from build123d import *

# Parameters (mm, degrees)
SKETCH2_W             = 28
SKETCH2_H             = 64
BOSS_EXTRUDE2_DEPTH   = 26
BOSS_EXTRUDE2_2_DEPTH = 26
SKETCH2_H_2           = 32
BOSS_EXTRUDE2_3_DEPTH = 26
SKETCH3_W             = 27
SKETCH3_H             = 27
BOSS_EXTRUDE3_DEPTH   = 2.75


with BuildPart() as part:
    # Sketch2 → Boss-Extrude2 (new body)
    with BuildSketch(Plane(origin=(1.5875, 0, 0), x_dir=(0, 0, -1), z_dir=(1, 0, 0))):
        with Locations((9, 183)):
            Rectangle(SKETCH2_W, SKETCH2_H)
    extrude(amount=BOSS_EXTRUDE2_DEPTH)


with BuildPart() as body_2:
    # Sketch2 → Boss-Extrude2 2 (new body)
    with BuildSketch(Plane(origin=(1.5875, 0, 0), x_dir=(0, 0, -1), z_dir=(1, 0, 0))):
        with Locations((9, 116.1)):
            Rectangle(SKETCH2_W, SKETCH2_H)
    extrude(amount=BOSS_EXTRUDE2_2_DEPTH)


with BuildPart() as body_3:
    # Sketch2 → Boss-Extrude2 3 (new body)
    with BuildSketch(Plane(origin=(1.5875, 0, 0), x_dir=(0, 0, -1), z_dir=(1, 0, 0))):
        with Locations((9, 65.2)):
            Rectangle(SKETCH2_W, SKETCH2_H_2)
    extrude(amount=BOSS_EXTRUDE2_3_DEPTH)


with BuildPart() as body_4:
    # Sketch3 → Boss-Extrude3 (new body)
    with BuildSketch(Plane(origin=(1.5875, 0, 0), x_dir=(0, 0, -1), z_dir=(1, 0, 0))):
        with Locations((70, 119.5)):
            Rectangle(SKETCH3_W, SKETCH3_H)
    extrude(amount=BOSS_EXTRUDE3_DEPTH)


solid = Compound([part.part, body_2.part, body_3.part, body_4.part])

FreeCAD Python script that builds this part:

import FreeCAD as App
import Part
import Sketcher

doc = App.newDocument("Part")
body = doc.addObject("PartDesign::Body", "Body")

# Sketch on YZ plane
sketch1 = doc.addObject("Sketcher::SketchObject", "Sketch")
body.addObject(sketch1)
sketch1.AttachmentSupport = (doc.YZ_Plane, [""])
sketch1.MapMode = "FlatFace"
sketch1.AttachmentOffset = App.Placement(App.Vector(0, 0, 1.5875), App.Rotation())
sketch1.addGeometry([
    Part.LineSegment(App.Vector(215, 5, 0), App.Vector(151, 5, 0)),
    Part.LineSegment(App.Vector(151, 5, 0), App.Vector(151, -23, 0)),
    Part.LineSegment(App.Vector(151, -23, 0), App.Vector(215, -23, 0)),
    Part.LineSegment(App.Vector(215, -23, 0), App.Vector(215, 5, 0)),
], False)
sketch1.addConstraint([
    Sketcher.Constraint("Coincident", 0, 2, 1, 1),
    Sketcher.Constraint("Coincident", 1, 2, 2, 1),
    Sketcher.Constraint("Coincident", 2, 2, 3, 1),
    Sketcher.Constraint("Coincident", 3, 2, 0, 1),
    Sketcher.Constraint("Horizontal", 0),
    Sketcher.Constraint("Vertical", 1),
    Sketcher.Constraint("Horizontal", 2),
    Sketcher.Constraint("Vertical", 3),
    Sketcher.Constraint("DistanceX", 0, 2, 0, 1, 64.0),
    Sketcher.Constraint("DistanceY", 1, 2, 1, 1, 28.0),
    Sketcher.Constraint("DistanceX", -1, 1, 0, 2, 151.0),
    Sketcher.Constraint("DistanceY", -1, 1, 0, 2, 5.0),
])
pad1 = doc.addObject("PartDesign::Pad", "Pad")
body.addObject(pad1)
pad1.Profile = sketch1
pad1.Length = 26
body2 = doc.addObject("PartDesign::Body", "Body001")

# Sketch on YZ plane
sketch2 = doc.addObject("Sketcher::SketchObject", "Sketch001")
body2.addObject(sketch2)
sketch2.AttachmentSupport = (doc.getObject("YZ_Plane001"), [""])
sketch2.MapMode = "FlatFace"
sketch2.AttachmentOffset = App.Placement(App.Vector(0, 0, 1.5875), App.Rotation())
sketch2.addGeometry([
    Part.LineSegment(App.Vector(148, 5, 0), App.Vector(84, 5, 0)),
    Part.LineSegment(App.Vector(84, 5, 0), App.Vector(84, -23, 0)),
    Part.LineSegment(App.Vector(84, -23, 0), App.Vector(148, -23, 0)),
    Part.LineSegment(App.Vector(148, -23, 0), App.Vector(148, 5, 0)),
], False)
sketch2.addConstraint([
    Sketcher.Constraint("Coincident", 0, 2, 1, 1),
    Sketcher.Constraint("Coincident", 1, 2, 2, 1),
    Sketcher.Constraint("Coincident", 2, 2, 3, 1),
    Sketcher.Constraint("Coincident", 3, 2, 0, 1),
    Sketcher.Constraint("Horizontal", 0),
    Sketcher.Constraint("Vertical", 1),
    Sketcher.Constraint("Horizontal", 2),
    Sketcher.Constraint("Vertical", 3),
    Sketcher.Constraint("DistanceX", 0, 2, 0, 1, 64.0),
    Sketcher.Constraint("DistanceY", 1, 2, 1, 1, 28.0),
    Sketcher.Constraint("DistanceY", -1, 1, 0, 2, 5.0),
    Sketcher.Constraint("DistanceX", -1, 1, 0, 2, 84.1),
])
pad2 = doc.addObject("PartDesign::Pad", "Pad001")
body2.addObject(pad2)
pad2.Profile = sketch2
pad2.Length = 26
body3 = doc.addObject("PartDesign::Body", "Body002")

# Sketch on YZ plane
sketch3 = doc.addObject("Sketcher::SketchObject", "Sketch002")
body3.addObject(sketch3)
sketch3.AttachmentSupport = (doc.getObject("YZ_Plane002"), [""])
sketch3.MapMode = "FlatFace"
sketch3.AttachmentOffset = App.Placement(App.Vector(0, 0, 1.5875), App.Rotation())
sketch3.addGeometry([
    Part.LineSegment(App.Vector(81, 5, 0), App.Vector(49, 5, 0)),
    Part.LineSegment(App.Vector(49, 5, 0), App.Vector(49, -23, 0)),
    Part.LineSegment(App.Vector(49, -23, 0), App.Vector(81, -23, 0)),
    Part.LineSegment(App.Vector(81, -23, 0), App.Vector(81, 5, 0)),
], False)
sketch3.addConstraint([
    Sketcher.Constraint("Coincident", 0, 2, 1, 1),
    Sketcher.Constraint("Coincident", 1, 2, 2, 1),
    Sketcher.Constraint("Coincident", 2, 2, 3, 1),
    Sketcher.Constraint("Coincident", 3, 2, 0, 1),
    Sketcher.Constraint("Horizontal", 0),
    Sketcher.Constraint("Vertical", 1),
    Sketcher.Constraint("Horizontal", 2),
    Sketcher.Constraint("Vertical", 3),
    Sketcher.Constraint("DistanceX", 0, 2, 0, 1, 32.0),
    Sketcher.Constraint("DistanceY", 1, 2, 1, 1, 28.0),
    Sketcher.Constraint("DistanceY", -1, 1, 0, 2, 5.0),
    Sketcher.Constraint("DistanceX", -1, 1, 0, 2, 49.2),
])
pad3 = doc.addObject("PartDesign::Pad", "Pad002")
body3.addObject(pad3)
pad3.Profile = sketch3
pad3.Length = 26
body4 = doc.addObject("PartDesign::Body", "Body003")

# Sketch on YZ plane
sketch4 = doc.addObject("Sketcher::SketchObject", "Sketch003")
body4.addObject(sketch4)
sketch4.AttachmentSupport = (doc.getObject("YZ_Plane003"), [""])
sketch4.MapMode = "FlatFace"
sketch4.AttachmentOffset = App.Placement(App.Vector(0, 0, 1.5875), App.Rotation())
sketch4.addGeometry([
    Part.LineSegment(App.Vector(133, -56, 0), App.Vector(106, -56, 0)),
    Part.LineSegment(App.Vector(106, -56, 0), App.Vector(106, -84, 0)),
    Part.LineSegment(App.Vector(106, -84, 0), App.Vector(133, -84, 0)),
    Part.LineSegment(App.Vector(133, -84, 0), App.Vector(133, -56, 0)),
], False)
sketch4.addConstraint([
    Sketcher.Constraint("Coincident", 0, 2, 1, 1),
    Sketcher.Constraint("Coincident", 1, 2, 2, 1),
    Sketcher.Constraint("Coincident", 2, 2, 3, 1),
    Sketcher.Constraint("Coincident", 3, 2, 0, 1),
    Sketcher.Constraint("Horizontal", 0),
    Sketcher.Constraint("Vertical", 1),
    Sketcher.Constraint("Horizontal", 2),
    Sketcher.Constraint("Vertical", 3),
    Sketcher.Constraint("Equal", 2, 1),
    Sketcher.Constraint("DistanceX", 0, 2, 0, 1, 27.0),
    Sketcher.Constraint("DistanceX", -1, 1, 0, 2, 106.0),
    Sketcher.Constraint("DistanceY", 0, 2, -1, 1, 56.5),
])
pad4 = doc.addObject("PartDesign::Pad", "Pad003")
body4.addObject(pad4)
pad4.Profile = sketch4
pad4.Length = 2.75

doc.recompute()
